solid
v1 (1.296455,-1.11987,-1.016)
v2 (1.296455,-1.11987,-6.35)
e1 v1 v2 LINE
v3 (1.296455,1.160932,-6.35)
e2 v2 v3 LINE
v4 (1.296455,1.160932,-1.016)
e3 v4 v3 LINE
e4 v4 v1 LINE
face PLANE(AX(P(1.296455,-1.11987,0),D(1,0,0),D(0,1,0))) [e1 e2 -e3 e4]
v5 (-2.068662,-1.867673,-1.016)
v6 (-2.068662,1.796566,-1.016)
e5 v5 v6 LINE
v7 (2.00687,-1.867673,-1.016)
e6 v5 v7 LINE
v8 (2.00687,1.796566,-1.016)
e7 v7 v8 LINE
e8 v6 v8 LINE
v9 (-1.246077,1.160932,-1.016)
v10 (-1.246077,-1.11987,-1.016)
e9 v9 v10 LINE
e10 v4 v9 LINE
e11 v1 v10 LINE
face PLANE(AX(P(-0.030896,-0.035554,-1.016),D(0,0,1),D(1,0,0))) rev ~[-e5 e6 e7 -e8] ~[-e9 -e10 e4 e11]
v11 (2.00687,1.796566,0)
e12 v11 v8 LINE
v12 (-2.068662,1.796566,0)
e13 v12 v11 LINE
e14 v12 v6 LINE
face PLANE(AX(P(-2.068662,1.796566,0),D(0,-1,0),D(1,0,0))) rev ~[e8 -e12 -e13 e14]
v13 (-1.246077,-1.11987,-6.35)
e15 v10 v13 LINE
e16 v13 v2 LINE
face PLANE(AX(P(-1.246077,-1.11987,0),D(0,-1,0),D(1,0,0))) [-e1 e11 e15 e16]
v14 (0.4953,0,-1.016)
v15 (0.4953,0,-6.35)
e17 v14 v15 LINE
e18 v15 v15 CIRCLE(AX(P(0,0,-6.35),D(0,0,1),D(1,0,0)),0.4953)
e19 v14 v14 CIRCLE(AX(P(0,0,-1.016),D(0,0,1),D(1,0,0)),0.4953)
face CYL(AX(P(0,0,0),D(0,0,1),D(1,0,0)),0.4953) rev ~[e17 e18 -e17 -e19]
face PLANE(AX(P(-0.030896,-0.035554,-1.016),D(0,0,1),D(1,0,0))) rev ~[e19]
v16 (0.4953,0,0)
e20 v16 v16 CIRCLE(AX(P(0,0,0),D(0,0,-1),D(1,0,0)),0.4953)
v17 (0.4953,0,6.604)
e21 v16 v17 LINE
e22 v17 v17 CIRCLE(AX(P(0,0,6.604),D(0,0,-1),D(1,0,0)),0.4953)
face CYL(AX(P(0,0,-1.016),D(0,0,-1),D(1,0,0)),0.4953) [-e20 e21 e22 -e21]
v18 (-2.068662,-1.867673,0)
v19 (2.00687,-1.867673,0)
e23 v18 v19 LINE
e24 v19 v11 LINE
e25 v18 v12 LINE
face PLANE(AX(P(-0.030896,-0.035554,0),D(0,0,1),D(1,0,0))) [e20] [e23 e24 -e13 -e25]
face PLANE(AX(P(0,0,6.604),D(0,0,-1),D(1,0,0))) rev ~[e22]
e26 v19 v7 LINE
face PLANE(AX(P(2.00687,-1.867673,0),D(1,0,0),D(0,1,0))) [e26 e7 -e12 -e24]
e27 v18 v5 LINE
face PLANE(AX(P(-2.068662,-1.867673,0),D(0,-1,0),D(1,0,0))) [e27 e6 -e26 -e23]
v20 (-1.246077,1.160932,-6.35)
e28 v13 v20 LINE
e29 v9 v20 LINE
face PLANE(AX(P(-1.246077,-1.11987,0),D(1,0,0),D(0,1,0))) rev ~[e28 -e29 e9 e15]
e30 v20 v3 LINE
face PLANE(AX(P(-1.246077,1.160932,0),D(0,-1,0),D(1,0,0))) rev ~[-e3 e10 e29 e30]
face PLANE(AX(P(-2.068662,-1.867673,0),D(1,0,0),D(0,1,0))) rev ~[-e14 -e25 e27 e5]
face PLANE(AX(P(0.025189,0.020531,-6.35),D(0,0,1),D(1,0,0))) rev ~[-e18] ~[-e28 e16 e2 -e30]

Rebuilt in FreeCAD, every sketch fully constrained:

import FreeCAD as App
import Part
import Sketcher
Q = App.Units.Quantity


def add_polygon(sketch, points):
    """Adds a closed chain of lines whose ends are joined by coincident constraints."""
    first, n = sketch.GeometryCount, len(points)
    for a, b in zip(points, points[1:] + points[:1]):
        sketch.addGeometry(Part.LineSegment(App.Vector(*a, 0), App.Vector(*b, 0)), False)
    for i in range(n):
        sketch.addConstraint(Sketcher.Constraint("Coincident", first + i, 2, first + (i + 1) % n, 1))

doc = App.newDocument("Part")
params = doc.addObject("Spreadsheet::Sheet", "Params")
for row, (alias, value) in enumerate([
    ("sketch1_diameter", "0.039 in"),
    ("pad1_length", "0.25 in"),
    ("pad2_length", "0.04 in"),
    ("sketch3_diameter", "0.039 in"),
    ("pad3_length", "0.3 in"),
], start=1):
    params.set(f"A{row}", alias)
    params.set(f"B{row}", "=" + value)
    params.setAlias(f"B{row}", alias)

body = doc.addObject("PartDesign::Body", "Body")

# Sketch on XY plane
sketch1 = body.newObject("Sketcher::SketchObject", "Sketch")
sketch1.AttachmentSupport = (doc.getObject("XY_Plane"), [""])
sketch1.MapMode = "FlatFace"
add_polygon(sketch1, [(-1.246077, 1.160932), (-1.246077, -1.11987), (1.296455, -1.11987), (1.296455, 1.160932)])  # lines 0-3
sketch1.addGeometry(Part.Circle(App.Vector(0, 0, 0), App.Vector(0, 0, 1), 0.4953), False)  # 4
sketch1.addConstraint(Sketcher.Constraint("Vertical", 0))
sketch1.addConstraint(Sketcher.Constraint("Horizontal", 1))
sketch1.addConstraint(Sketcher.Constraint("Vertical", 2))
sketch1.addConstraint(Sketcher.Constraint("Horizontal", 3))
sketch1.addConstraint(Sketcher.Constraint("Coincident", 4, 3, -1, 1))
sketch1.addConstraint(Sketcher.Constraint("Diameter", 4, Q("0.039 in")))
sketch1.addConstraint(Sketcher.Constraint("DistanceY", 0, 2, 0, 1, Q("2.280801 mm")))
sketch1.addConstraint(Sketcher.Constraint("DistanceX", 1, 1, 1, 2, Q("2.542533 mm")))
sketch1.addConstraint(Sketcher.Constraint("DistanceY", 0, 2, -1, 1, Q("1.11987 mm")))
sketch1.addConstraint(Sketcher.Constraint("DistanceX", 0, 2, -1, 1, Q("1.246077 mm")))
sketch1.setExpression("Constraints[9]", "Params.sketch1_diameter")
pad1 = body.newObject("PartDesign::Pad", "Pad")
pad1.Profile = sketch1
pad1.setExpression("Length", "Params.pad1_length")
pad1.Reversed = True

# Sketch on XY plane
sketch2 = body.newObject("Sketcher::SketchObject", "Sketch001")
sketch2.AttachmentSupport = (doc.getObject("XY_Plane"), [""])
sketch2.MapMode = "FlatFace"
add_polygon(sketch2, [(-2.068662, 1.796566), (-2.068662, -1.867673), (2.00687, -1.867673), (2.00687, 1.796566)])  # lines 0-3
sketch2.addConstraint(Sketcher.Constraint("Vertical", 0))
sketch2.addConstraint(Sketcher.Constraint("Horizontal", 1))
sketch2.addConstraint(Sketcher.Constraint("Vertical", 2))
sketch2.addConstraint(Sketcher.Constraint("Horizontal", 3))
sketch2.addConstraint(Sketcher.Constraint("DistanceX", 1, 1, 1, 2, Q("4.075531 mm")))
sketch2.addConstraint(Sketcher.Constraint("DistanceY", 0, 2, 0, 1, Q("3.664239 mm")))
sketch2.addConstraint(Sketcher.Constraint("DistanceX", 0, 2, -1, 1, Q("2.068662 mm")))
sketch2.addConstraint(Sketcher.Constraint("DistanceY", 0, 2, -1, 1, Q("1.867673 mm")))
pad2 = body.newObject("PartDesign::Pad", "Pad001")
pad2.Profile = sketch2
pad2.setExpression("Length", "Params.pad2_length")
pad2.Reversed = True

# Sketch on XY plane
sketch3 = body.newObject("Sketcher::SketchObject", "Sketch002")
sketch3.AttachmentSupport = (doc.getObject("XY_Plane"), [""])
sketch3.MapMode = "FlatFace"
sketch3.AttachmentOffset = App.Placement(App.Vector(0, 0, -0.04 * 25.4), App.Rotation())
sketch3.addGeometry(Part.Circle(App.Vector(0, 0, 0), App.Vector(0, 0, 1), 0.4953), False)
sketch3.addConstraint(Sketcher.Constraint("Coincident", 0, 3, -1, 1))
sketch3.addConstraint(Sketcher.Constraint("Diameter", 0, Q("0.039 in")))
sketch3.setExpression("Constraints[1]", "Params.sketch3_diameter")
pad3 = body.newObject("PartDesign::Pad", "Pad002")
pad3.Profile = sketch3
pad3.setExpression("Length", "Params.pad3_length")

doc.recompute()
